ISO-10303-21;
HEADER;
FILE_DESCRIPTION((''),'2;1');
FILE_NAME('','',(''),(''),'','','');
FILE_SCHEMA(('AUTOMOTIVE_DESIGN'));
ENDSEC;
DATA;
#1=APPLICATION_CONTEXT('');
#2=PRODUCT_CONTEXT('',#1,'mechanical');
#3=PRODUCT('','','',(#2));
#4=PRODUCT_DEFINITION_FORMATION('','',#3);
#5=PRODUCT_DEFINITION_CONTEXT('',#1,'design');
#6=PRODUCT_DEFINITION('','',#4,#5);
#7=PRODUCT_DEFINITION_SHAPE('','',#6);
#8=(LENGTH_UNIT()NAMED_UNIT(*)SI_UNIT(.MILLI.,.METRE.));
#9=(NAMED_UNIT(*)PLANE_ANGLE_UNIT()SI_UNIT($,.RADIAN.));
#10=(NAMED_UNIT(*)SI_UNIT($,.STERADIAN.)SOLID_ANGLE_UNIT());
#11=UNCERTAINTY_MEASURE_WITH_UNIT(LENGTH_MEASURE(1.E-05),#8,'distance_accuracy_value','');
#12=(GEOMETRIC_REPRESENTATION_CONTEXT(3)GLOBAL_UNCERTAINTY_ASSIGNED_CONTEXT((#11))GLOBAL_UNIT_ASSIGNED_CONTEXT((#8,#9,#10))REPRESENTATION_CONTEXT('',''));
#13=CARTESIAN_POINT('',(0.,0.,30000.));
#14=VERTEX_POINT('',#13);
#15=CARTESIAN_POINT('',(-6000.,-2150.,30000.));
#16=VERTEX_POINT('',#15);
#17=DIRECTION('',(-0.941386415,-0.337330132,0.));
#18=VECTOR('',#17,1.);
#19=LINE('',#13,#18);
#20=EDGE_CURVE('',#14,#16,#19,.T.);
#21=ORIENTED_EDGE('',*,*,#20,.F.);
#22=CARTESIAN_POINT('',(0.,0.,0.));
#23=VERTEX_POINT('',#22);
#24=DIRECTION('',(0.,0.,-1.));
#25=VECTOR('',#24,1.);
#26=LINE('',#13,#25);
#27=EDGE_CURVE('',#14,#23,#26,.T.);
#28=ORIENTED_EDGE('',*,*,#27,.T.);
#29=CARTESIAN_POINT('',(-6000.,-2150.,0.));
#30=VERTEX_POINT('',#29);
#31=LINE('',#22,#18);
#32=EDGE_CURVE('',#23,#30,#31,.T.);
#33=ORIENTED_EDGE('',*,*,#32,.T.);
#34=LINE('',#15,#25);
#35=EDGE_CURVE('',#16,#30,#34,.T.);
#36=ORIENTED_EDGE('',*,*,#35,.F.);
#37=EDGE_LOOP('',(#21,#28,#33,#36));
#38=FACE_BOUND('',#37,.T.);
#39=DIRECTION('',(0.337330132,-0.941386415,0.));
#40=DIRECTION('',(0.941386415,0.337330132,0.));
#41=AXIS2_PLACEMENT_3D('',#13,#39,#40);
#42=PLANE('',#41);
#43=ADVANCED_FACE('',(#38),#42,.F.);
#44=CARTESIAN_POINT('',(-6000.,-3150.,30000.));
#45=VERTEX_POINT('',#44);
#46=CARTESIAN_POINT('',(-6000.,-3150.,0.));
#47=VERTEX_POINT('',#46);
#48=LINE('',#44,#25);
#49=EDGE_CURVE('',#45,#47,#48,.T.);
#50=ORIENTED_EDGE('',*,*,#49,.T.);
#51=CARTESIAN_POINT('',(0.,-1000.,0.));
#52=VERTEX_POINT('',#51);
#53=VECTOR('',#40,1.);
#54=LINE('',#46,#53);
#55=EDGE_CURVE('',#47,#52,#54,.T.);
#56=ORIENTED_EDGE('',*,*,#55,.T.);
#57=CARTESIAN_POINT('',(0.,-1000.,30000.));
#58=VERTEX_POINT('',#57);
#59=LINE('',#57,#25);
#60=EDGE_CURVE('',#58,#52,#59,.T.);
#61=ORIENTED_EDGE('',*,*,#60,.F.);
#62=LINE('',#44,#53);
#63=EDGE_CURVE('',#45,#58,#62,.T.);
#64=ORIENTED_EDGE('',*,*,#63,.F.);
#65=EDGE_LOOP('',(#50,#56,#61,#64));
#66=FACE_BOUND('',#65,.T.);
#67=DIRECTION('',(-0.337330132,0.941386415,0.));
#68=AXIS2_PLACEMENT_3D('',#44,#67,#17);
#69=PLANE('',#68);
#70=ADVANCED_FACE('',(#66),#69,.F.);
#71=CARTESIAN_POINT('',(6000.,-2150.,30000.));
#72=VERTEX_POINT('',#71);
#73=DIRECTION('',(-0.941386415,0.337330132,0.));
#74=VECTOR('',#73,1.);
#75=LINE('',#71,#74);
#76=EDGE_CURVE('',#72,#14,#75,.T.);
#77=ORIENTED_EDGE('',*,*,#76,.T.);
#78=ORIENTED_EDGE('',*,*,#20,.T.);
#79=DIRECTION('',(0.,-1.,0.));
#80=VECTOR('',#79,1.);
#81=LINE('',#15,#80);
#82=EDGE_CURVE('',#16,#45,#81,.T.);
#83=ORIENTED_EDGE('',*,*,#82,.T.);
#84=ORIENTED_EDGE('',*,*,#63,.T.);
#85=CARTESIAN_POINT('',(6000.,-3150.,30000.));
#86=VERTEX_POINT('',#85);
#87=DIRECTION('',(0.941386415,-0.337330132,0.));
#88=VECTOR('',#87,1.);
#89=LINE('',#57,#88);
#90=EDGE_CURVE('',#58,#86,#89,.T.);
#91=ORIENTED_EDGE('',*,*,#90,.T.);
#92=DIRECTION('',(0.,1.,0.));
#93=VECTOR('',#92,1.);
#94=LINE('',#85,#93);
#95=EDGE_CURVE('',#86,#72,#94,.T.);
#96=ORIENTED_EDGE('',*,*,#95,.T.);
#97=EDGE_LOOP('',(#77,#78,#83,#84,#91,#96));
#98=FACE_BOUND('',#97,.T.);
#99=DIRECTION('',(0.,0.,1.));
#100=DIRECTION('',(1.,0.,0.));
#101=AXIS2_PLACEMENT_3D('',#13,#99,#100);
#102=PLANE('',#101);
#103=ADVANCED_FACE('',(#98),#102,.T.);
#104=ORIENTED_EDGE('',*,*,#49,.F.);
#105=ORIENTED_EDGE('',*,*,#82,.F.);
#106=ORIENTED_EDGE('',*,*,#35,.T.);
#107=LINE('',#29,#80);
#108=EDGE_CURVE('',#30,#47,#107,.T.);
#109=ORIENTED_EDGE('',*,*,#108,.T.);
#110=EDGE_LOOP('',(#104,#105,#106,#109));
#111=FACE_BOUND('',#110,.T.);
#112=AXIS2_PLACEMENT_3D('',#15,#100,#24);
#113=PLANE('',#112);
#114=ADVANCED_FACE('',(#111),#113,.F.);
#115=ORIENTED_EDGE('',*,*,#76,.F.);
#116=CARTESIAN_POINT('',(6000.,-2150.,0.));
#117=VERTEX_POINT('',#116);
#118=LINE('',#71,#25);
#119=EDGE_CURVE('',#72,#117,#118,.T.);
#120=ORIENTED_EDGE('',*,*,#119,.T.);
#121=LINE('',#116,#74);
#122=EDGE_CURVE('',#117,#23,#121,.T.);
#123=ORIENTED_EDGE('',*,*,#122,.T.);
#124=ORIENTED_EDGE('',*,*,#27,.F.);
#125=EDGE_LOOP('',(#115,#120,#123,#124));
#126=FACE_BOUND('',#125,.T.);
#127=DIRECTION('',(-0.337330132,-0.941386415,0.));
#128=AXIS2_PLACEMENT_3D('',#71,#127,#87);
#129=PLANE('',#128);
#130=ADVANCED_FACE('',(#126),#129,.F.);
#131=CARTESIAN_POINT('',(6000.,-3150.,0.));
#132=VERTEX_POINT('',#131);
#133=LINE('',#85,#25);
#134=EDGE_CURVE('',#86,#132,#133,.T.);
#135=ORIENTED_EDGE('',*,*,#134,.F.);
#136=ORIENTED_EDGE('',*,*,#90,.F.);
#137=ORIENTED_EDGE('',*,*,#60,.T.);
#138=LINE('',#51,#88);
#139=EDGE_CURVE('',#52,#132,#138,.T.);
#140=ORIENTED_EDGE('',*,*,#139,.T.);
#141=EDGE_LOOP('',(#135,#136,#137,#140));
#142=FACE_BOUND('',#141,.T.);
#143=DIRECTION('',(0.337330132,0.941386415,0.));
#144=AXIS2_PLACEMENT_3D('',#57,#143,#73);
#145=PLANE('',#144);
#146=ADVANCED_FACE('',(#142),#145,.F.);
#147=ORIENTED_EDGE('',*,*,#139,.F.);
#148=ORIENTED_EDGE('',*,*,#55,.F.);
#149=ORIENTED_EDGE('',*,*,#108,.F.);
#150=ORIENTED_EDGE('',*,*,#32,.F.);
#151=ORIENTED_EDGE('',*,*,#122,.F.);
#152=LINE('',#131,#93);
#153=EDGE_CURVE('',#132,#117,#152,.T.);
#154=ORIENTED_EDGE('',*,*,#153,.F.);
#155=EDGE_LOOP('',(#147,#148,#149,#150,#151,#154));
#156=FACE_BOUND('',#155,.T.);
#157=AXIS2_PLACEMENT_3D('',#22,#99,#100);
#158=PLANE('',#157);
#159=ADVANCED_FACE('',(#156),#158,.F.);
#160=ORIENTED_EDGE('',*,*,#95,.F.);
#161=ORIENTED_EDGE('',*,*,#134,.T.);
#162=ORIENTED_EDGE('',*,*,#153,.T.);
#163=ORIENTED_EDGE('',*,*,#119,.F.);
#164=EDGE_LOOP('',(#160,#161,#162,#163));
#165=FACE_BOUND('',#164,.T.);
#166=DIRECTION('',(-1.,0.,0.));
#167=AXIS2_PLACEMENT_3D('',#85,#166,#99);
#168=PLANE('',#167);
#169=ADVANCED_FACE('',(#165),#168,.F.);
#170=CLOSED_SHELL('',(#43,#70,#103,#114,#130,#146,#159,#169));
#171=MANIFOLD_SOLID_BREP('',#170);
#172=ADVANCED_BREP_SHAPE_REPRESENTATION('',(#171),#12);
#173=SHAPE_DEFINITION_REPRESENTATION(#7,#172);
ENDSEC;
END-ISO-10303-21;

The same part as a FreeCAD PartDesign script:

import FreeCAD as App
import Part
import Sketcher

V = App.Vector


def add_polygon(sketch, points):
    """Adds a closed chain of lines whose ends are joined by coincident constraints."""
    first, n = sketch.GeometryCount, len(points)
    for a, b in zip(points, points[1:] + points[:1]):
        sketch.addGeometry(Part.LineSegment(App.Vector(*a, 0), App.Vector(*b, 0)), False)
    for i in range(n):
        sketch.addConstraint(Sketcher.Constraint("Coincident", first + i, 2, first + (i + 1) % n, 1))

doc = App.newDocument("Part")
params = doc.addObject("Spreadsheet::Sheet", "Params")
for row, (alias, value) in enumerate([
    ("sketch1_height", "1000 mm"),
    ("pad1_length", "30000 mm"),
], start=1):
    params.set(f"A{row}", alias)
    params.set(f"B{row}", "=" + value)
    params.setAlias(f"B{row}", alias)

body = doc.addObject("PartDesign::Body", "Body")

sketch1 = body.newObject("Sketcher::SketchObject", "Sketch")
sketch1.AttachmentSupport = (doc.getObject("XY_Plane"), [""])
sketch1.MapMode = "FlatFace"
add_polygon(sketch1, [(0, 0), (-6000, -2150), (-6000, -3150), (0, -1000), (6000, -3150), (6000, -2150)])
sketch1.addConstraint(Sketcher.Constraint("Vertical", 1))
sketch1.addConstraint(Sketcher.Constraint("Vertical", 4))
sketch1.addConstraint(Sketcher.Constraint("Coincident", 5, 2, -1, 1))
sketch1.addConstraint(Sketcher.Constraint("Symmetric", 1, 2, 3, 2, -2))
sketch1.addConstraint(Sketcher.Constraint("PointOnObject", 2, 2, -2))
sketch1.addConstraint(Sketcher.Constraint("Parallel", 0, 2))
sketch1.addConstraint(Sketcher.Constraint("Parallel", 3, 5))
sketch1.addConstraint(Sketcher.Constraint("DistanceY", 1, 2, 1, 1, 1000.0))
sketch1.addConstraint(Sketcher.Constraint("DistanceX", 0, 2, -1, 1, 6000.0))
sketch1.addConstraint(Sketcher.Constraint("DistanceY", 0, 2, -1, 1, 2150.0))
sketch1.setExpression("Constraints[13]", "Params.sketch1_height")
pad1 = body.newObject("PartDesign::Pad", "Pad")
pad1.Profile = sketch1
pad1.setExpression("Length", "Params.pad1_length")

doc.recompute()
